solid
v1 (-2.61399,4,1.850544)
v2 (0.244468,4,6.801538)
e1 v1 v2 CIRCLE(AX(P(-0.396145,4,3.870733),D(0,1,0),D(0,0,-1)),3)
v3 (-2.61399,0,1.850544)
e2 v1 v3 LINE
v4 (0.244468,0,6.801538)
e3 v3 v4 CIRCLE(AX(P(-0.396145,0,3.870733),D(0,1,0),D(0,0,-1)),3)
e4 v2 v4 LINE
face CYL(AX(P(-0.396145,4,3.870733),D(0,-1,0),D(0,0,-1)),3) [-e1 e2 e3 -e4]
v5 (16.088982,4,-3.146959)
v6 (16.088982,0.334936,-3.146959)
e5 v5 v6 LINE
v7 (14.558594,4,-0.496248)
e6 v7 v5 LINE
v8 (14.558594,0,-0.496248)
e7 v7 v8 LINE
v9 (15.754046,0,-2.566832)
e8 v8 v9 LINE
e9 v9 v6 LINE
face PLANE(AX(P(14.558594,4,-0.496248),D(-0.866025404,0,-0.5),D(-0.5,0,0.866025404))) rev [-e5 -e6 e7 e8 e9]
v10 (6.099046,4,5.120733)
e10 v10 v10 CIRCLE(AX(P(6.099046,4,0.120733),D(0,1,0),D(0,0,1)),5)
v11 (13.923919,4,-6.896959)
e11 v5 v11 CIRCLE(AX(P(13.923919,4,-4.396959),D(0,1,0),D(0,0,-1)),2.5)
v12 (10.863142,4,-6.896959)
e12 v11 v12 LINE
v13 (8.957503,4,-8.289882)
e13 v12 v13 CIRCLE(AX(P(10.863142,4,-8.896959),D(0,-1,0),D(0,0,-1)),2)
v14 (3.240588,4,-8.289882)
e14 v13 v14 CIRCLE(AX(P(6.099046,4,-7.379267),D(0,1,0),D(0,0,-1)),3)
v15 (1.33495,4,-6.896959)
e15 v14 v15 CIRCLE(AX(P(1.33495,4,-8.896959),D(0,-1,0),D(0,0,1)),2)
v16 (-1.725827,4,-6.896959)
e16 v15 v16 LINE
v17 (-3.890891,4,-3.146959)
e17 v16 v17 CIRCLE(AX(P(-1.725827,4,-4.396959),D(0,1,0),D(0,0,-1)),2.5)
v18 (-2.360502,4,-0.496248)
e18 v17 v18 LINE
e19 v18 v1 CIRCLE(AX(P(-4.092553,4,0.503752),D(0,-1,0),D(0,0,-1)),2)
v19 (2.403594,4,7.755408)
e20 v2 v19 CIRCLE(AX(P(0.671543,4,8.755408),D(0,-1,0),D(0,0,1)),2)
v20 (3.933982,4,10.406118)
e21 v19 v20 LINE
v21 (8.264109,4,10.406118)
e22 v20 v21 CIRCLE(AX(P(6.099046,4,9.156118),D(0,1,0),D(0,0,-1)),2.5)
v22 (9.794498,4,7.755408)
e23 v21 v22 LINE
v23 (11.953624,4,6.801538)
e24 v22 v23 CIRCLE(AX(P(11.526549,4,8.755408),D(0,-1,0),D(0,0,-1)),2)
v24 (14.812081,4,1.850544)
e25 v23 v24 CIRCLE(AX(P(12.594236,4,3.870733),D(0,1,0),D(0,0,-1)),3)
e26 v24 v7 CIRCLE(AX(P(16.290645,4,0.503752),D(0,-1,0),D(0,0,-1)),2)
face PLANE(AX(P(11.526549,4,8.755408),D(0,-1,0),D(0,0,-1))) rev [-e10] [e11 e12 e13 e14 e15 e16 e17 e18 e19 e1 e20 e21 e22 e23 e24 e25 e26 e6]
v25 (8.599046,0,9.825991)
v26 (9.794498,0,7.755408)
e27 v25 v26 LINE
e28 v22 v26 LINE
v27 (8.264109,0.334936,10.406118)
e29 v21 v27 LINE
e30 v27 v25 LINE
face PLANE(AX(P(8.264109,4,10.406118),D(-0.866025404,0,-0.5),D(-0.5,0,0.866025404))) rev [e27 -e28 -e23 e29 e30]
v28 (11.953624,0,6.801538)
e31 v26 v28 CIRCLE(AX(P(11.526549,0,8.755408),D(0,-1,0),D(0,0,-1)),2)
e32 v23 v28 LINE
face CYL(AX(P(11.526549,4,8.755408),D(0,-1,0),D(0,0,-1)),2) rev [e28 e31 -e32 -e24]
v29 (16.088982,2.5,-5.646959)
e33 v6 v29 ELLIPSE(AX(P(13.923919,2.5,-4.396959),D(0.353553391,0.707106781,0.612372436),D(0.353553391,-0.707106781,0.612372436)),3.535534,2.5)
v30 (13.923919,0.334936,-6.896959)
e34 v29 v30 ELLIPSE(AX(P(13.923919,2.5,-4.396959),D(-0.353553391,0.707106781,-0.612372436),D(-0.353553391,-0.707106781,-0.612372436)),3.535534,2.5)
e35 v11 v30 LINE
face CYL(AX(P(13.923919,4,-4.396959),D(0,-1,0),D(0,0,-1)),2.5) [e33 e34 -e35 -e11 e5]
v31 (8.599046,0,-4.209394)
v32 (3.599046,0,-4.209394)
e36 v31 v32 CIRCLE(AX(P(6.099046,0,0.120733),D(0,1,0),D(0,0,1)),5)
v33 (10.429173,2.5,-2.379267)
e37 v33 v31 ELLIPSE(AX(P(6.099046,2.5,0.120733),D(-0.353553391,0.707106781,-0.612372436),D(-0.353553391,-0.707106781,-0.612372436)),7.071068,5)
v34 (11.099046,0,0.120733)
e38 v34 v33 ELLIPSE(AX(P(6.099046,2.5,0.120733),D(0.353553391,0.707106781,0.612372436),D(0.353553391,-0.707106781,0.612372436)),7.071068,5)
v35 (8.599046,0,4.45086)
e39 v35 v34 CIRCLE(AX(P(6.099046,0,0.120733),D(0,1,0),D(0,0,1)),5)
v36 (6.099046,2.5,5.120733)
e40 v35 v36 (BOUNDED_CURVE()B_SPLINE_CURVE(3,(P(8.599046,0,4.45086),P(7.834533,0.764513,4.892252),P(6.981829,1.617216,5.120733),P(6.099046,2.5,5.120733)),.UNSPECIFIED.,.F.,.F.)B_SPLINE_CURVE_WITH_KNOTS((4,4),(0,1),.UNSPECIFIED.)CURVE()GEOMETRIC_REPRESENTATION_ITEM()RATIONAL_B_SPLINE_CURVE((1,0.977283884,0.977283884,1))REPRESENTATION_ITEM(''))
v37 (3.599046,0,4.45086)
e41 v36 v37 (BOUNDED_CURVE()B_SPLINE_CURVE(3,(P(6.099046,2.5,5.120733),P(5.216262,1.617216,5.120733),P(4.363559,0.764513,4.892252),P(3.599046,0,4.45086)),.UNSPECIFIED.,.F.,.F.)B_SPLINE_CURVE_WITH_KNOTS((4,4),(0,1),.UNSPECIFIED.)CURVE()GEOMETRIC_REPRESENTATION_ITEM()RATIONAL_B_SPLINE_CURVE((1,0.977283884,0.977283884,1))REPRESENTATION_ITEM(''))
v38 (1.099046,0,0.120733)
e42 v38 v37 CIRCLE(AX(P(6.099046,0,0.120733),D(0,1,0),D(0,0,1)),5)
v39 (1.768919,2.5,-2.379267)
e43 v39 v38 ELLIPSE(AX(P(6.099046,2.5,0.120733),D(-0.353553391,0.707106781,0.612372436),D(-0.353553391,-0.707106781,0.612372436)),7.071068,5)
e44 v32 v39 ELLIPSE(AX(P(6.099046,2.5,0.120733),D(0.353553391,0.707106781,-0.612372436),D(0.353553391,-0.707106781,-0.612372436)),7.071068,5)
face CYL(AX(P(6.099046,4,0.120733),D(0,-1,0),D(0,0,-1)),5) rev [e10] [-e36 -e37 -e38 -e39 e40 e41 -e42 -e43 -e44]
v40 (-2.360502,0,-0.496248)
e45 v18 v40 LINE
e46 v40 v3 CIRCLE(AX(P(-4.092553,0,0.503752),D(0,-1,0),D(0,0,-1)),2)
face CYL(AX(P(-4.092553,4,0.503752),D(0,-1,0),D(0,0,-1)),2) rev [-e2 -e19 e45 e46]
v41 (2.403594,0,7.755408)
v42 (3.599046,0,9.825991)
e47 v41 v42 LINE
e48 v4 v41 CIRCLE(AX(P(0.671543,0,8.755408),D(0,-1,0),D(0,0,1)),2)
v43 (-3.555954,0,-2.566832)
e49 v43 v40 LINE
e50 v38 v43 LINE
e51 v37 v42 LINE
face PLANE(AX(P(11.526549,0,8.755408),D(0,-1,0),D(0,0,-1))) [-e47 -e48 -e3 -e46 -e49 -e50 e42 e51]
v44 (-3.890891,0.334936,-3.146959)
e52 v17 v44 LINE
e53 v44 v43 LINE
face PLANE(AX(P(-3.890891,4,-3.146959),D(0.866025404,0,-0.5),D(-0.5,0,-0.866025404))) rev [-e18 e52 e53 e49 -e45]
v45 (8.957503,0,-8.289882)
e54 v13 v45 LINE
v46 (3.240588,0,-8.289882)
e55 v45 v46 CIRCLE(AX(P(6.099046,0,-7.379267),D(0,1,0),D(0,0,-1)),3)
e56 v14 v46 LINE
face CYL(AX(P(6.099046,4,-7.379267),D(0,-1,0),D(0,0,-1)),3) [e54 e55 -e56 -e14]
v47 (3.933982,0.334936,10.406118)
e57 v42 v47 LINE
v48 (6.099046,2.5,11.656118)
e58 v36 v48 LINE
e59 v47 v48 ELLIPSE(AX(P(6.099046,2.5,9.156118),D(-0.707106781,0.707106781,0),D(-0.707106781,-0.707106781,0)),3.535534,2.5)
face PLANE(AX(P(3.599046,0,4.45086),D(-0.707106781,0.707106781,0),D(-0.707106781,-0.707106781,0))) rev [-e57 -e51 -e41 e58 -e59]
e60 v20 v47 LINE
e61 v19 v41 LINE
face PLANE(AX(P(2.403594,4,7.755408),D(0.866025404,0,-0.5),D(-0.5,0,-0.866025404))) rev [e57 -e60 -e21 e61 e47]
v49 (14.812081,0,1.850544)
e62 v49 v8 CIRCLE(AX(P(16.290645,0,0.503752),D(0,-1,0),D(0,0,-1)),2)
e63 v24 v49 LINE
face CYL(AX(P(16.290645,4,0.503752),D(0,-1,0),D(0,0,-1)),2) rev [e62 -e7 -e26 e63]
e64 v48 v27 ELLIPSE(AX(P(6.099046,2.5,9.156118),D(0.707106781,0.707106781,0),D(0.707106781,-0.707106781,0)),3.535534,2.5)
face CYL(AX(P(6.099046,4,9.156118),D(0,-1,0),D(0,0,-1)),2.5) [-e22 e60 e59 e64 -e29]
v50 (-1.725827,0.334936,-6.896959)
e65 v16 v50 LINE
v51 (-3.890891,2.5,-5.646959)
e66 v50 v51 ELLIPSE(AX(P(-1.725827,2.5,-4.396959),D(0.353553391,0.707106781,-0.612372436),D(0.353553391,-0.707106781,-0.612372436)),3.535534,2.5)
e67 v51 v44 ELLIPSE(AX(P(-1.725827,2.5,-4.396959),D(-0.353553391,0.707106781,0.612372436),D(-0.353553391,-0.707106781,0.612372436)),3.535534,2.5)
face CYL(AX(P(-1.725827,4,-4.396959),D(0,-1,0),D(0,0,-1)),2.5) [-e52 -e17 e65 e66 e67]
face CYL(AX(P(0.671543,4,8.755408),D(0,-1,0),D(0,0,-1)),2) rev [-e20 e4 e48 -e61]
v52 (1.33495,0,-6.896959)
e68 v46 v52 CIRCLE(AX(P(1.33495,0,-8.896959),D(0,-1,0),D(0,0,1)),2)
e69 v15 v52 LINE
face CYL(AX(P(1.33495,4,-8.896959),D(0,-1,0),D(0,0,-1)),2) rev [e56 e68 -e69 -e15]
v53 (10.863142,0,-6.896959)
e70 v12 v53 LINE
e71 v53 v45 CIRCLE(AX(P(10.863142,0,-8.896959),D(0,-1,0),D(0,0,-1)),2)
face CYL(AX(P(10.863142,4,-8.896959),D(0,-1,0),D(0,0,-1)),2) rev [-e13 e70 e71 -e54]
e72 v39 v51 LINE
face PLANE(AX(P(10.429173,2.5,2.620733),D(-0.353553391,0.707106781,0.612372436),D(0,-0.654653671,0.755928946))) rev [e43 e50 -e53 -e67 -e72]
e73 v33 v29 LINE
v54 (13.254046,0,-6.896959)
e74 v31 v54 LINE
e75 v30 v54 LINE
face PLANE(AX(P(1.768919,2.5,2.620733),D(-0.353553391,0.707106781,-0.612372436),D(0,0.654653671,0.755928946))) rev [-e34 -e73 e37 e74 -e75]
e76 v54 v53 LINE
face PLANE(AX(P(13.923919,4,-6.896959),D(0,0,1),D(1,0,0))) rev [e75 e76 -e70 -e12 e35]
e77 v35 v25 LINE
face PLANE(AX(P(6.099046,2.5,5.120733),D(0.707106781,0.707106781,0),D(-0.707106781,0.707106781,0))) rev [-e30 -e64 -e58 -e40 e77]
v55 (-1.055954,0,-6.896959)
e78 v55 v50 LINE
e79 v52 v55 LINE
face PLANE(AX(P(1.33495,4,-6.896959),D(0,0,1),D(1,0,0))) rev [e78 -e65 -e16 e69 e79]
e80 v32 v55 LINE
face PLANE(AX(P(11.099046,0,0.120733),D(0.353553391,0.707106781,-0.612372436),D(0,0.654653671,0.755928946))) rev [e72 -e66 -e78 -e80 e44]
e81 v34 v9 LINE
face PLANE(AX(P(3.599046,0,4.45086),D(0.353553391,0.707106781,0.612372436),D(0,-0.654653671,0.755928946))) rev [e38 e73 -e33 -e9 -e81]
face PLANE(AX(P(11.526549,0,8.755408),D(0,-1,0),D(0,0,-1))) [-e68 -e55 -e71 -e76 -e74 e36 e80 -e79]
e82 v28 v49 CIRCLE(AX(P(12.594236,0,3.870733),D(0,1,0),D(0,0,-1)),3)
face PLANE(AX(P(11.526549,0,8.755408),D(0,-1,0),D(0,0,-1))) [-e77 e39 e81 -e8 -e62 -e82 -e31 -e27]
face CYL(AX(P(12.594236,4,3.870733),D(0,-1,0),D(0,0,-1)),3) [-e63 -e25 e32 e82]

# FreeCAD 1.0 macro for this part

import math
import FreeCAD as App
import Part
import Sketcher
from FreeCAD import Vector
Q = App.Units.Quantity

doc = App.newDocument("Part")
body = doc.addObject("PartDesign::Body", "Body")

# Sketch on XZ plane
sketch1 = body.newObject("Sketcher::SketchObject", "Sketch")
sketch1.AttachmentSupport = (doc.getObject("XZ_Plane"), [""])
sketch1.MapMode = "FlatFace"
sketch1.addGeometry([
    Part.LineSegment(Vector(-3.9, -3.1, 0), Vector(-2.4, -0.5, 0)),  # 0
    Part.ArcOfCircle(Part.Circle(Vector(-4.1, 0.5, 0), Vector(0, 0, 1), 2), math.radians(-30), math.radians(42)),  # 1
    Part.ArcOfCircle(Part.Circle(Vector(-0.4, 3.9, 0), Vector(0, 0, 1), 3), math.radians(78), math.radians(222)),  # 2
    Part.ArcOfCircle(Part.Circle(Vector(0.7, 8.8, 0), Vector(0, 0, 1), 2), math.radians(-102), math.radians(-30)),  # 3
    Part.LineSegment(Vector(2.4, 7.8, 0), Vector(3.9, 10.4, 0)),  # 4
    Part.ArcOfCircle(Part.Circle(Vector(6.1, 9.2, 0), Vector(0, 0, 1), 2.5), math.radians(30), math.radians(150)),  # 5
    Part.LineSegment(Vector(8.3, 10.4, 0), Vector(9.8, 7.8, 0)),  # 6
    Part.ArcOfCircle(Part.Circle(Vector(11.5, 8.8, 0), Vector(0, 0, 1), 2), math.radians(-150), math.radians(-78)),  # 7
    Part.ArcOfCircle(Part.Circle(Vector(12.6, 3.9, 0), Vector(0, 0, 1), 3), math.radians(-42), math.radians(102)),  # 8
    Part.ArcOfCircle(Part.Circle(Vector(16.3, 0.5, 0), Vector(0, 0, 1), 2), math.radians(138), math.radians(210)),  # 9
    Part.LineSegment(Vector(14.6, -0.5, 0), Vector(16.1, -3.1, 0)),  # 10
    Part.ArcOfCircle(Part.Circle(Vector(13.9, -4.4, 0), Vector(0, 0, 1), 2.5), math.radians(-90), math.radians(30)),  # 11
    Part.LineSegment(Vector(13.9, -6.9, 0), Vector(10.9, -6.9, 0)),  # 12
    Part.ArcOfCircle(Part.Circle(Vector(10.9, -8.9, 0), Vector(0, 0, 1), 2), math.radians(90), math.radians(162)),  # 13
    Part.ArcOfCircle(Part.Circle(Vector(6.1, -7.4, 0), Vector(0, 0, 1), 3), math.radians(-162), math.radians(-18)),  # 14
    Part.ArcOfCircle(Part.Circle(Vector(1.3, -8.9, 0), Vector(0, 0, 1), 2), math.radians(18), math.radians(90)),  # 15
    Part.LineSegment(Vector(1.3, -6.9, 0), Vector(-1.7, -6.9, 0)),  # 16
    Part.ArcOfCircle(Part.Circle(Vector(-1.7, -4.4, 0), Vector(0, 0, 1), 2.5), math.radians(150), math.radians(270)),  # 17
    Part.Circle(Vector(6.1, 0.1, 0), Vector(0, 0, 1), 5),  # 18
], False)
sketch1.addConstraint([
    Sketcher.Constraint("Tangent", 0, 2, 1, 1),
    Sketcher.Constraint("Tangent", 1, 2, 2, 2),
    Sketcher.Constraint("Tangent", 2, 1, 3, 1),
    Sketcher.Constraint("Tangent", 3, 2, 4, 1),
    Sketcher.Constraint("Tangent", 4, 2, 5, 2),
    Sketcher.Constraint("Tangent", 5, 1, 6, 1),
    Sketcher.Constraint("Tangent", 6, 2, 7, 1),
    Sketcher.Constraint("Tangent", 7, 2, 8, 2),
    Sketcher.Constraint("Tangent", 8, 1, 9, 1),
    Sketcher.Constraint("Tangent", 9, 2, 10, 1),
    Sketcher.Constraint("Tangent", 10, 2, 11, 2),
    Sketcher.Constraint("Tangent", 11, 1, 12, 1),
    Sketcher.Constraint("Tangent", 12, 2, 13, 1),
    Sketcher.Constraint("Tangent", 13, 2, 14, 2),
    Sketcher.Constraint("Tangent", 14, 1, 15, 1),
    Sketcher.Constraint("Tangent", 15, 2, 16, 1),
    Sketcher.Constraint("Tangent", 16, 2, 17, 2),
    Sketcher.Constraint("Tangent", 17, 1, 0, 1),
    Sketcher.Constraint("Horizontal", 12),
    Sketcher.Constraint("Horizontal", 16),
    Sketcher.Constraint("Equal", 1, 3),
    Sketcher.Constraint("Equal", 3, 7),
    Sketcher.Constraint("Equal", 2, 8),
    Sketcher.Constraint("Equal", 7, 9),
    Sketcher.Constraint("Equal", 5, 11),
    Sketcher.Constraint("Equal", 9, 13),
    Sketcher.Constraint("Equal", 8, 14),
    Sketcher.Constraint("Equal", 13, 15),
    Sketcher.Constraint("Equal", 11, 17),
    Sketcher.Constraint("Parallel", 0, 4),
    Sketcher.Constraint("Parallel", 6, 10),
    Sketcher.Constraint("Horizontal", 3, 3, 7, 3),
    Sketcher.Constraint("Horizontal", 2, 3, 8, 3),
    Sketcher.Constraint("Horizontal", 1, 3, 9, 3),
    Sketcher.Constraint("Horizontal", 13, 3, 15, 3),
    Sketcher.Constraint("Horizontal", 4, 2, 5, 1),
    Sketcher.Constraint("Vertical", 5, 3, 14, 3),
    Sketcher.Constraint("Vertical", 14, 3, 18, 3),
    Sketcher.Constraint("Equal", 0, 4),
    Sketcher.Constraint("Diameter", 18, 10.0),
    Sketcher.Constraint("Radius", 1, 2.0),
    Sketcher.Constraint("Radius", 2, 3.0),
    Sketcher.Constraint("Radius", 5, 2.5),
    Sketcher.Constraint("Angle", 0, Q("60 deg")),
    Sketcher.Constraint("DistanceY", 14, 3, 18, 3, 7.5),
    Sketcher.Constraint("DistanceY", 14, 3, 8, 3, 11.25),
    Sketcher.Constraint("DistanceX", 1, 3, 5, 3, 10.191599),
    Sketcher.Constraint("DistanceX", 1, 3, 7, 3, 15.619102),
    Sketcher.Constraint("DistanceX", 8, 1, 10, 2, 1.276901),
    Sketcher.Constraint("DistanceY", -1, 1, 1, 3, 0.503752),
    Sketcher.Constraint("DistanceX", -1, 1, 7, 3, 11.526549),
])
pad1 = body.newObject("PartDesign::Pad", "Pad")
pad1.Profile = sketch1
pad1.Length = 4
pad1.Reversed = True

# Sketch on XY plane
sketch2 = body.newObject("Sketcher::SketchObject", "Sketch001")
sketch2.AttachmentSupport = (doc.getObject("XY_Plane"), [""])
sketch2.MapMode = "FlatFace"
sketch2.AttachmentOffset = App.Placement(Vector(0, 0, 4.45086), App.Rotation())
sketch2.addGeometry([
    Part.LineSegment(Vector(35, -26, 0), Vector(6, 2, 0)),  # 0
    Part.LineSegment(Vector(6, 2, 0), Vector(-22, -26, 0)),  # 1
    Part.LineSegment(Vector(-22, -26, 0), Vector(-22, -100, 0)),  # 2
    Part.LineSegment(Vector(-22, -100, 0), Vector(35, -100, 0)),  # 3
    Part.LineSegment(Vector(35, -100, 0), Vector(35, -26, 0)),  # 4
], False)
sketch2.addConstraint([
    Sketcher.Constraint("Coincident", 0, 2, 1, 1),
    Sketcher.Constraint("Coincident", 1, 2, 2, 1),
    Sketcher.Constraint("Coincident", 2, 2, 3, 1),
    Sketcher.Constraint("Coincident", 3, 2, 4, 1),
    Sketcher.Constraint("Coincident", 4, 2, 0, 1),
    Sketcher.Constraint("Vertical", 2),
    Sketcher.Constraint("Horizontal", 3),
    Sketcher.Constraint("Vertical", 4),
    Sketcher.Constraint("Perpendicular", 0, 1),
    Sketcher.Constraint("Horizontal", 1, 2, 4, 2),
    Sketcher.Constraint("Equal", 0, 1),
    Sketcher.Constraint("DistanceY", -1, 1, 0, 2, 2.5),
    Sketcher.Constraint("DistanceX", 3, 1, 3, 2, 57.139753),
    Sketcher.Constraint("DistanceY", 2, 2, 2, 1, 73.736746),
    Sketcher.Constraint("DistanceX", 1, 2, -1, 1, 22.470831),
])
pocket1 = body.newObject("PartDesign::Pocket", "Pocket")
pocket1.Profile = sketch2
pocket1.Length = 7.205259
pocket1.Reversed = True

# Sketch on an angled plane
sketch3 = body.newObject("Sketcher::SketchObject", "Sketch002")
sketch3.Placement = App.Placement(Vector(0.876564, 0, 0.506084), App.Rotation(Vector(-0.5, 0, 0.866025404), Vector(0, 1, 0), Vector(-0.866025404, 0, -0.5), "ZXY"))
sketch3.addGeometry([
    Part.LineSegment(Vector(32.2, -32.7, 0), Vector(-0.4, 0, 0)),  # 0
    Part.LineSegment(Vector(-0.4, 0, 0), Vector(-2.9, 2.5, 0)),  # 1
    Part.LineSegment(Vector(-2.9, 2.5, 0), Vector(-38.1, -32.7, 0)),  # 2
    Part.LineSegment(Vector(-38.1, -32.7, 0), Vector(-38.1, -125.1, 0)),  # 3
    Part.LineSegment(Vector(-38.1, -125.1, 0), Vector(32.2, -125.1, 0)),  # 4
    Part.LineSegment(Vector(32.2, -125.1, 0), Vector(32.2, -32.7, 0)),  # 5
], False)
sketch3.addConstraint([
    Sketcher.Constraint("Coincident", 0, 2, 1, 1),
    Sketcher.Constraint("Coincident", 1, 2, 2, 1),
    Sketcher.Constraint("Coincident", 2, 2, 3, 1),
    Sketcher.Constraint("Coincident", 3, 2, 4, 1),
    Sketcher.Constraint("Coincident", 4, 2, 5, 1),
    Sketcher.Constraint("Coincident", 5, 2, 0, 1),
    Sketcher.Constraint("Vertical", 3),
    Sketcher.Constraint("Horizontal", 4),
    Sketcher.Constraint("Vertical", 5),
    Sketcher.Constraint("PointOnObject", 0, 2, -1),
    Sketcher.Constraint("Parallel", 0, 1),
    Sketcher.Constraint("Perpendicular", 1, 2),
    Sketcher.Constraint("Horizontal", 2, 2, 5, 2),
    Sketcher.Constraint("Angle", 0, Q("135 deg")),
    Sketcher.Constraint("DistanceY", -1, 1, 1, 2, 2.5),
    Sketcher.Constraint("DistanceY", 3, 2, 3, 1, 92.399588),
    Sketcher.Constraint("DistanceX", 4, 1, 4, 2, 70.336375),
    Sketcher.Constraint("DistanceX", 0, 2, -1, 1, 0.444965),
])
pocket2 = body.newObject("PartDesign::Pocket", "Pocket001")
pocket2.Profile = sketch3
pocket2.Length = 7.205258
pocket2.Reversed = True

# Sketch on an angled plane
sketch4 = body.newObject("Sketcher::SketchObject", "Sketch003")
sketch4.Placement = App.Placement(Vector(8.272005, 0, -4.775844), App.Rotation(Vector(-0.5, 0, -0.866025404), Vector(0, 1, 0), Vector(0.866025404, 0, -0.5), "ZXY"))
sketch4.addGeometry([
    Part.LineSegment(Vector(32, -32.7, 0), Vector(-3.2, 2.5, 0)),  # 0
    Part.LineSegment(Vector(-3.2, 2.5, 0), Vector(-5.7, 0, 0)),  # 1
    Part.LineSegment(Vector(-5.7, 0, 0), Vector(-38.3, -32.7, 0)),  # 2
    Part.LineSegment(Vector(-38.3, -32.7, 0), Vector(-38.3, -125.1, 0)),  # 3
    Part.LineSegment(Vector(-38.3, -125.1, 0), Vector(32, -125.1, 0)),  # 4
    Part.LineSegment(Vector(32, -125.1, 0), Vector(32, -32.7, 0)),  # 5
], False)
sketch4.addConstraint([
    Sketcher.Constraint("Coincident", 0, 2, 1, 1),
    Sketcher.Constraint("Coincident", 1, 2, 2, 1),
    Sketcher.Constraint("Coincident", 2, 2, 3, 1),
    Sketcher.Constraint("Coincident", 3, 2, 4, 1),
    Sketcher.Constraint("Coincident", 4, 2, 5, 1),
    Sketcher.Constraint("Coincident", 5, 2, 0, 1),
    Sketcher.Constraint("Vertical", 3),
    Sketcher.Constraint("Horizontal", 4),
    Sketcher.Constraint("Vertical", 5),
    Sketcher.Constraint("PointOnObject", 1, 2, -1),
    Sketcher.Constraint("Perpendicular", 0, 1),
    Sketcher.Constraint("Parallel", 1, 2),
    Sketcher.Constraint("Horizontal", 2, 2, 5, 2),
    Sketcher.Constraint("Angle", 0, Q("135 deg")),
    Sketcher.Constraint("DistanceY", -1, 1, 0, 2, 2.5),
    Sketcher.Constraint("DistanceY", 3, 2, 3, 1, 92.399588),
    Sketcher.Constraint("DistanceX", 4, 1, 4, 2, 70.336375),
    Sketcher.Constraint("DistanceX", 0, 2, -1, 1, 3.154081),
])
pocket3 = body.newObject("PartDesign::Pocket", "Pocket002")
pocket3.Profile = sketch4
pocket3.Length = 7.205258
pocket3.Reversed = True

doc.recompute()
